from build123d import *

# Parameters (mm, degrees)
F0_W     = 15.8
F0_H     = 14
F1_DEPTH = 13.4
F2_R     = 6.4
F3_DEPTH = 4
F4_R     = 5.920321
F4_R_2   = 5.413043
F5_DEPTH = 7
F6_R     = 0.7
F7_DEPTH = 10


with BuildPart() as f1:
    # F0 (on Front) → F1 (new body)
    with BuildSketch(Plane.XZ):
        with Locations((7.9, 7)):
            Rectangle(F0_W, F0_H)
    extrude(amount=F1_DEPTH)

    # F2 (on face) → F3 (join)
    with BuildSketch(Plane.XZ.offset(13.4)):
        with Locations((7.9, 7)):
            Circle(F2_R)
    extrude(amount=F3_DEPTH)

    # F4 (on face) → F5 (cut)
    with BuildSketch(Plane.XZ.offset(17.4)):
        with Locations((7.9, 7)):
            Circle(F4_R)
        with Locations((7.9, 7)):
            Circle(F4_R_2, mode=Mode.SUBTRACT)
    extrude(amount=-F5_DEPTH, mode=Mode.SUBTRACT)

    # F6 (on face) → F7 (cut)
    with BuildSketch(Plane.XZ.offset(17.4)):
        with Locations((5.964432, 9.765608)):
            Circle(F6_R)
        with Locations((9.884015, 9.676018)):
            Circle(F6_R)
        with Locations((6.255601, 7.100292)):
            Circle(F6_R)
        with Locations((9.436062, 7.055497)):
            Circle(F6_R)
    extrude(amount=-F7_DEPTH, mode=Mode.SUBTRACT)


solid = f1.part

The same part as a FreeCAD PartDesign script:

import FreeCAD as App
import Part
import Sketcher
from FreeCAD import Vector


def add_polygon(sketch, points):
    """Adds a closed chain of lines whose ends are joined by coincident constraints."""
    first, n = sketch.GeometryCount, len(points)
    for a, b in zip(points, points[1:] + points[:1]):
        sketch.addGeometry(Part.LineSegment(App.Vector(*a, 0), App.Vector(*b, 0)), False)
    for i in range(n):
        sketch.addConstraint(Sketcher.Constraint("Coincident", first + i, 2, first + (i + 1) % n, 1))

doc = App.newDocument("Part")
body = doc.addObject("PartDesign::Body", "Body")

sketch1 = doc.addObject("Sketcher::SketchObject", "Sketch")
body.addObject(sketch1)
sketch1.AttachmentSupport = (doc.XZ_Plane, [""])
sketch1.MapMode = "FlatFace"
add_polygon(sketch1, [(0, 14), (0, 0), (15.8, 0), (15.8, 14)])
sketch1.addConstraint([
    Sketcher.Constraint("Vertical", 0),
    Sketcher.Constraint("Horizontal", 1),
    Sketcher.Constraint("Vertical", 2),
    Sketcher.Constraint("Horizontal", 3),
    Sketcher.Constraint("Coincident", 0, 2, -1, 1),
    Sketcher.Constraint("DistanceY", 0, 2, 0, 1, 14.0),
    Sketcher.Constraint("DistanceX", 1, 1, 1, 2, 15.8),
])
pad1 = doc.addObject("PartDesign::Pad", "Pad")
body.addObject(pad1)
pad1.Profile = sketch1
pad1.Length = 13.4

sketch2 = doc.addObject("Sketcher::SketchObject", "Sketch001")
body.addObject(sketch2)
sketch2.AttachmentSupport = (doc.XZ_Plane, [""])
sketch2.MapMode = "FlatFace"
sketch2.AttachmentOffset = App.Placement(Vector(0, 0, 13.4), App.Rotation())
sketch2.addGeometry(Part.Circle(Vector(7.9, 7, 0), Vector(0, 0, 1), 6.4), False)
sketch2.addConstraint([
    Sketcher.Constraint("Diameter", 0, 12.8),
    Sketcher.Constraint("DistanceY", -1, 1, 0, 3, 7.0),
    Sketcher.Constraint("DistanceX", -1, 1, 0, 3, 7.9),
])
pad2 = doc.addObject("PartDesign::Pad", "Pad001")
body.addObject(pad2)
pad2.Profile = sketch2
pad2.Length = 4

sketch3 = doc.addObject("Sketcher::SketchObject", "Sketch002")
body.addObject(sketch3)
sketch3.AttachmentSupport = (doc.XZ_Plane, [""])
sketch3.MapMode = "FlatFace"
sketch3.AttachmentOffset = App.Placement(Vector(0, 0, 17.4), App.Rotation())
sketch3.addGeometry([
    Part.Circle(Vector(7.9, 7, 0), Vector(0, 0, 1), 5.920321),
    Part.Circle(Vector(7.9, 7, 0), Vector(0, 0, 1), 5.413043),
], False)
sketch3.addConstraint([
    Sketcher.Constraint("Coincident", 1, 3, 0, 3),
    Sketcher.Constraint("DistanceY", -1, 1, 0, 3, 7.0),
    Sketcher.Constraint("DistanceX", -1, 1, 0, 3, 7.9),
    Sketcher.Constraint("Diameter", 0, 11.840642),
    Sketcher.Constraint("Diameter", 1, 10.826086),
])
pocket1 = doc.addObject("PartDesign::Pocket", "Pocket")
body.addObject(pocket1)
pocket1.Profile = sketch3
pocket1.Length = 7

sketch4 = doc.addObject("Sketcher::SketchObject", "Sketch003")
body.addObject(sketch4)
sketch4.AttachmentSupport = (doc.XZ_Plane, [""])
sketch4.MapMode = "FlatFace"
sketch4.AttachmentOffset = App.Placement(Vector(0, 0, 17.4), App.Rotation())
sketch4.addGeometry([
    Part.Circle(Vector(5.964432, 9.765608, 0), Vector(0, 0, 1), 0.7),
    Part.Circle(Vector(9.884015, 9.676018, 0), Vector(0, 0, 1), 0.7),
    Part.Circle(Vector(6.255601, 7.100292, 0), Vector(0, 0, 1), 0.7),
    Part.Circle(Vector(9.436062, 7.055497, 0), Vector(0, 0, 1), 0.7),
], False)
sketch4.addConstraint([
    Sketcher.Constraint("Equal", 0, 1),
    Sketcher.Constraint("Equal", 1, 2),
    Sketcher.Constraint("Equal", 2, 3),
    Sketcher.Constraint("Diameter", 0, 1.4),
    Sketcher.Constraint("DistanceX", -1, 1, 2, 3, 6.255601),
    Sketcher.Constraint("DistanceY", -1, 1, 2, 3, 7.100292),
    Sketcher.Constraint("DistanceY", 1, 3, 0, 3, 0.08959),
    Sketcher.Constraint("DistanceX", 0, 3, 2, 3, 0.291169),
    Sketcher.Constraint("DistanceY", 3, 3, 1, 3, 2.620521),
    Sketcher.Constraint("DistanceX", 2, 3, 3, 3, 3.180461),
    Sketcher.Constraint("DistanceY", -1, 1, 0, 3, 9.765608),
    Sketcher.Constraint("DistanceX", -1, 1, 1, 3, 9.884015),
])
pocket2 = doc.addObject("PartDesign::Pocket", "Pocket001")
body.addObject(pocket2)
pocket2.Profile = sketch4
pocket2.Length = 10

doc.recompute()
